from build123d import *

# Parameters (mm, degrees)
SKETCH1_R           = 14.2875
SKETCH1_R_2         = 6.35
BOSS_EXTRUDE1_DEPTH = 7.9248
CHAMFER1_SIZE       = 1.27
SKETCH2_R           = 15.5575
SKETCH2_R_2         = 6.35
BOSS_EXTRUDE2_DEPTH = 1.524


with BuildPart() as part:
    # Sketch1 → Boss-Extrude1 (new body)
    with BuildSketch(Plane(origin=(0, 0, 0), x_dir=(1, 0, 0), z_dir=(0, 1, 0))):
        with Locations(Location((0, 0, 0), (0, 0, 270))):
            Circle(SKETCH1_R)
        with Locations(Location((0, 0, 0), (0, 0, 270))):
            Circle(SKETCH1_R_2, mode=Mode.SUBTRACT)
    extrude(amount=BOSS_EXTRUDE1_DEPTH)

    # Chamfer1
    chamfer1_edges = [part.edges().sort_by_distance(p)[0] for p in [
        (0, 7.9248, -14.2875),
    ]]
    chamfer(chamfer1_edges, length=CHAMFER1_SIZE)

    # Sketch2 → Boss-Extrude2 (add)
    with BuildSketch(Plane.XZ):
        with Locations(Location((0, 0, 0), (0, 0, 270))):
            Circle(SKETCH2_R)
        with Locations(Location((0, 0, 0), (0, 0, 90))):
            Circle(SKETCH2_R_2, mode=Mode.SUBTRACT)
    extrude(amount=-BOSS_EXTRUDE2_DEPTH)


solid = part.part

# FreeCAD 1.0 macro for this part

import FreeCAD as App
import Part
import Sketcher
from FreeCAD import Vector
Q = App.Units.Quantity


def edges_at(feature, points):
    """Names of the edges that pass closest to the given points."""
    edges = feature.Shape.Edges
    near = lambda p: min(range(len(edges)), key=lambda i: edges[i].distToShape(Part.Vertex(*p))[0])
    return sorted({f"Edge{near(p) + 1}" for p in points})

doc = App.newDocument("Part")
body = doc.addObject("PartDesign::Body", "Body")

sketch1 = doc.addObject("Sketcher::SketchObject", "Sketch")
body.addObject(sketch1)
sketch1.AttachmentSupport = (doc.XZ_Plane, [""])
sketch1.MapMode = "FlatFace"
sketch1.addGeometry([
    Part.Circle(Vector(0, 0, 0), Vector(0, 0, 1), 14),
    Part.Circle(Vector(0, 0, 0), Vector(0, 0, 1), 6),
], False)
sketch1.addConstraint([
    Sketcher.Constraint("Coincident", 0, 3, -1, 1),
    Sketcher.Constraint("Coincident", 1, 3, -1, 1),
    Sketcher.Constraint("Diameter", 1, Q("0.5 in")),
    Sketcher.Constraint("Diameter", 0, Q("1.125 in")),
])
pad1 = doc.addObject("PartDesign::Pad", "Pad")
body.addObject(pad1)
pad1.Profile = sketch1
pad1.Length = Q("0.312 in")
pad1.Reversed = True
doc.recompute()

chamfer = doc.addObject("PartDesign::Chamfer", "Chamfer")
body.addObject(chamfer)
chamfer.Base = (pad1, edges_at(pad1, [(0, 7.925, -14.287)]))
chamfer.Size = Q("0.05 in")

sketch2 = doc.addObject("Sketcher::SketchObject", "Sketch001")
body.addObject(sketch2)
sketch2.AttachmentSupport = (doc.XZ_Plane, [""])
sketch2.MapMode = "FlatFace"
sketch2.addGeometry([
    Part.Circle(Vector(0, 0, 0), Vector(0, 0, 1), 16),
    Part.Circle(Vector(0, 0, 0), Vector(0, 0, 1), 6),
], False)
sketch2.addConstraint([
    Sketcher.Constraint("Coincident", 0, 3, -1, 1),
    Sketcher.Constraint("Coincident", 1, 3, -1, 1),
    Sketcher.Constraint("Diameter", 1, Q("0.5 in")),
    Sketcher.Constraint("Diameter", 0, Q("1.225 in")),
])
pad2 = doc.addObject("PartDesign::Pad", "Pad001")
body.addObject(pad2)
pad2.Profile = sketch2
pad2.Length = Q("0.06 in")
pad2.Reversed = True

doc.recompute()
